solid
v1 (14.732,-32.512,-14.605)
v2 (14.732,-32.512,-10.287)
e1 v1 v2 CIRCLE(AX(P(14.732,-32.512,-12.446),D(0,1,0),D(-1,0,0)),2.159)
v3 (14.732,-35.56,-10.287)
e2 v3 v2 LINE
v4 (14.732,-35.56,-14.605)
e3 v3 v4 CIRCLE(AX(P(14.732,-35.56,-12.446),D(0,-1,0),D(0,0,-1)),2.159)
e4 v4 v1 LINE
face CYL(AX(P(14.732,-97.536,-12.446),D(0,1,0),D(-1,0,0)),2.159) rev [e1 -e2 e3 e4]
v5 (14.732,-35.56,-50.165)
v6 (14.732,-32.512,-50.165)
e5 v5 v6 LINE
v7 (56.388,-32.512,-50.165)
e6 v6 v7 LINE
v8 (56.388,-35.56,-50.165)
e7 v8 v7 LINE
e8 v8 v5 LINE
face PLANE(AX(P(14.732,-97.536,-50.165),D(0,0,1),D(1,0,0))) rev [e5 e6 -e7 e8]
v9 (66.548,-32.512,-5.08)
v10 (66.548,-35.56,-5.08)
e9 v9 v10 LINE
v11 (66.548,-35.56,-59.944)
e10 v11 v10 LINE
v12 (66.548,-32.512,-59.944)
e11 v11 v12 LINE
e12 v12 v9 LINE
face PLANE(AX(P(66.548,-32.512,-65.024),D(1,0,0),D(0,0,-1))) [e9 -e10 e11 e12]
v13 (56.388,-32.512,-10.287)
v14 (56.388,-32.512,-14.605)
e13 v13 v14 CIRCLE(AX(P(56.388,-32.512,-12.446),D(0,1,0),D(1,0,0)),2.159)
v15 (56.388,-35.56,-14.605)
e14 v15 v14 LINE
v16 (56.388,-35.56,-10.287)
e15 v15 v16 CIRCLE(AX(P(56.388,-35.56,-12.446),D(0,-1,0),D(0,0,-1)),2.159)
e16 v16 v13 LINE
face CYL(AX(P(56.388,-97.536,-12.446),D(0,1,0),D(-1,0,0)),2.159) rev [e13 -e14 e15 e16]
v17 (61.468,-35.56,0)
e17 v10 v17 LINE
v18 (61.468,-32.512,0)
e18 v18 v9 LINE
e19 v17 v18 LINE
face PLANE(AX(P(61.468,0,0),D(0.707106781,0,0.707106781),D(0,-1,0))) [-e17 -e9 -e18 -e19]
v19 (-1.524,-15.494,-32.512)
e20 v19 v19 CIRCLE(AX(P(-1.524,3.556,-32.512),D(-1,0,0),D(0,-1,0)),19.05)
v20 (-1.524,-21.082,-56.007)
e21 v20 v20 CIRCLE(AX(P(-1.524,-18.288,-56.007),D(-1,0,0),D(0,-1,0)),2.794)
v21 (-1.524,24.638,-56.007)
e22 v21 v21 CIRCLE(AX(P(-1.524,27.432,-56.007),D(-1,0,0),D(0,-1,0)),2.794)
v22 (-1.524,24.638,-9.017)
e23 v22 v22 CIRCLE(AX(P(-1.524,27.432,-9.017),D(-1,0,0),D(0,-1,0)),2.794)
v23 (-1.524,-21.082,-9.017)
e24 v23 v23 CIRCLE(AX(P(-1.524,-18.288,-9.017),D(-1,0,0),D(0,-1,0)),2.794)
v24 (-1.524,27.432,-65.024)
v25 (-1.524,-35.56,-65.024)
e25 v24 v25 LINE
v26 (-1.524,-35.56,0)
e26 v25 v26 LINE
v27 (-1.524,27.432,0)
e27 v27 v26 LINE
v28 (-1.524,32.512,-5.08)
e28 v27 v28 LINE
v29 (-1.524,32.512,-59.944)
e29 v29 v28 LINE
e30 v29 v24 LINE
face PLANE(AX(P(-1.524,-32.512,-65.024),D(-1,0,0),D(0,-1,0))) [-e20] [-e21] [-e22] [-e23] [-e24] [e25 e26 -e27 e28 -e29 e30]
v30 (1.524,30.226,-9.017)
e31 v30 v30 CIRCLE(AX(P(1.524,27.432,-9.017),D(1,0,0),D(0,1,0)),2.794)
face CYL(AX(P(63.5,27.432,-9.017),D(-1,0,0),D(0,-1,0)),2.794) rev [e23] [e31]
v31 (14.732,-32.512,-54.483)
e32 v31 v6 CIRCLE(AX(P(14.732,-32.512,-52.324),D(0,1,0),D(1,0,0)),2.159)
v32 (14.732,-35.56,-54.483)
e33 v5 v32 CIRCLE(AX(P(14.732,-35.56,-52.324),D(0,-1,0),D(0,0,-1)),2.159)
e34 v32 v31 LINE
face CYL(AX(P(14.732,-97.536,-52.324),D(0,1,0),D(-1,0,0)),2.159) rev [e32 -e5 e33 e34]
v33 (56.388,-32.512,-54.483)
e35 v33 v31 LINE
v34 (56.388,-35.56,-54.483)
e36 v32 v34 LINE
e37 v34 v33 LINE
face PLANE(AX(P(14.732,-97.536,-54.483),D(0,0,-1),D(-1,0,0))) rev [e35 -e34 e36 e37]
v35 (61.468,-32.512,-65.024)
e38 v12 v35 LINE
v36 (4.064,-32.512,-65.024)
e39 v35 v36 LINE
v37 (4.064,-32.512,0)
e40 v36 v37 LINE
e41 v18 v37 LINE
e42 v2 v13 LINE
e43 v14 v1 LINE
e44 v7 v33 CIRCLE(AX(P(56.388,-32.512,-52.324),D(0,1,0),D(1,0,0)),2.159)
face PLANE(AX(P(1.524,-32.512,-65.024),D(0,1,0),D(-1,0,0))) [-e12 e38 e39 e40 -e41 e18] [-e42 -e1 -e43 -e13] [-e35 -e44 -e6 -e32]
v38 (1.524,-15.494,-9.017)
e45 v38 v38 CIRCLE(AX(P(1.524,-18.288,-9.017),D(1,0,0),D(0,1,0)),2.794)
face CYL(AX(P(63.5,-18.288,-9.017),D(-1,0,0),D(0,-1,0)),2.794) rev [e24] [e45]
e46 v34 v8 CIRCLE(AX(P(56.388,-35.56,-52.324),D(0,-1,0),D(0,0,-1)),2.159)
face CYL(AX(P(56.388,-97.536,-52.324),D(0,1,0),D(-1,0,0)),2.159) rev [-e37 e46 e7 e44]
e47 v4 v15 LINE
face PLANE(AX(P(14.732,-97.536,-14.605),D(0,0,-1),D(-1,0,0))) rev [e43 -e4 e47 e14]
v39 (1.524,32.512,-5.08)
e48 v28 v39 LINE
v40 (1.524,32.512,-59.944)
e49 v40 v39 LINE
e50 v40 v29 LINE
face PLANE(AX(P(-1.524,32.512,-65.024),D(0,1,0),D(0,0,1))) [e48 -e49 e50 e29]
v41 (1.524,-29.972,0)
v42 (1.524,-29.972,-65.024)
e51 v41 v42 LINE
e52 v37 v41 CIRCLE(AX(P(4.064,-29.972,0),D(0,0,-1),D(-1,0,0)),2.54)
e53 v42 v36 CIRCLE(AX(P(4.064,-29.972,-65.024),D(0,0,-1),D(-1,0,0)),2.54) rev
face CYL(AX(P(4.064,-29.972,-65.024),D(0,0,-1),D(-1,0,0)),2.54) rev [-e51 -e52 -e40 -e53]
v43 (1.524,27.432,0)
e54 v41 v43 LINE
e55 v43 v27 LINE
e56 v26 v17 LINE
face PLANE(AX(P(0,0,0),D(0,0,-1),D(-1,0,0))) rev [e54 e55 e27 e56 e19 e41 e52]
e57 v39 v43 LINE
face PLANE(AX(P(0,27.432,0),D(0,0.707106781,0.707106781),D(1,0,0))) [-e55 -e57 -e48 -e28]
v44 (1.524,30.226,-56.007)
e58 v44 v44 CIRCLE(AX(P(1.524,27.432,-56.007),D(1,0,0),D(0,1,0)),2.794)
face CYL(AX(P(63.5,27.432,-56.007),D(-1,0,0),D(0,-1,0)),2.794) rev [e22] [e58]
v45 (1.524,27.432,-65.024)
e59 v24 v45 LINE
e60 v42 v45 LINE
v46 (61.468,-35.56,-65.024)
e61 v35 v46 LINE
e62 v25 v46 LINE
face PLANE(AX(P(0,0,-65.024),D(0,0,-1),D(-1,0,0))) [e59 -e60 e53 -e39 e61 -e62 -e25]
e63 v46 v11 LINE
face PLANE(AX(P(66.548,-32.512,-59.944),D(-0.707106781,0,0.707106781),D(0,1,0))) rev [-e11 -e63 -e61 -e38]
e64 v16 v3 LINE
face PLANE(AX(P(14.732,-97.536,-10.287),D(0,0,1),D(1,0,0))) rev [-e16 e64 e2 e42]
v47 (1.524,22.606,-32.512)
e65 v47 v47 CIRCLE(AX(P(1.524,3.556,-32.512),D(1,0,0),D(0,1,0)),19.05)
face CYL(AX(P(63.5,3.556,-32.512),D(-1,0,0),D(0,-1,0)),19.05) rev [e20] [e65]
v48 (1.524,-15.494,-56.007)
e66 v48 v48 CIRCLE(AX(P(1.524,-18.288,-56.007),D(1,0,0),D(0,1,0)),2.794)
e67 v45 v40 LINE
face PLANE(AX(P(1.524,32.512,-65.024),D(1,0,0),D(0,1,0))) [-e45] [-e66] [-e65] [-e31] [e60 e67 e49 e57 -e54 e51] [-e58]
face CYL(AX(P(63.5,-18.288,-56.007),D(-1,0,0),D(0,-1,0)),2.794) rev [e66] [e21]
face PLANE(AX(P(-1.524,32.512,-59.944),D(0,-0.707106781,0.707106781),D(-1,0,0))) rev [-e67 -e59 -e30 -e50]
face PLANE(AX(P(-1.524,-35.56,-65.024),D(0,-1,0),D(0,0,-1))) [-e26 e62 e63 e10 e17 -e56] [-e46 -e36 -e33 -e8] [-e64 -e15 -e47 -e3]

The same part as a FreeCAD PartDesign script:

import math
import FreeCAD as App
import Part
import Sketcher
Q = App.Units.Quantity


def edges_at(feature, points):
    """Names of the edges that pass closest to the given points."""
    edges = feature.Shape.Edges
    near = lambda p: min(range(len(edges)), key=lambda i: edges[i].distToShape(Part.Vertex(*p))[0])
    return sorted({f"Edge{near(p) + 1}" for p in points})


def add_polygon(sketch, points):
    """Adds a closed chain of lines whose ends are joined by coincident constraints."""
    first, n = sketch.GeometryCount, len(points)
    for a, b in zip(points, points[1:] + points[:1]):
        sketch.addGeometry(Part.LineSegment(App.Vector(*a, 0), App.Vector(*b, 0)), False)
    for i in range(n):
        sketch.addConstraint(Sketcher.Constraint("Coincident", first + i, 2, first + (i + 1) % n, 1))

doc = App.newDocument("Part")
body = doc.addObject("PartDesign::Body", "Body")

sketch1 = body.newObject("Sketcher::SketchObject", "Sketch")
sketch1.AttachmentSupport = (doc.getObject("XY_Plane"), [""])
sketch1.MapMode = "FlatFace"
add_polygon(sketch1, [(1.5, 32.5), (-1.5, 32.5), (-1.5, -35.6), (66.5, -35.6), (66.5, -32.5), (1.5, -32.5)])
sketch1.addConstraint(Sketcher.Constraint("Horizontal", 0))
sketch1.addConstraint(Sketcher.Constraint("Vertical", 1))
sketch1.addConstraint(Sketcher.Constraint("Horizontal", 2))
sketch1.addConstraint(Sketcher.Constraint("Vertical", 3))
sketch1.addConstraint(Sketcher.Constraint("Horizontal", 4))
sketch1.addConstraint(Sketcher.Constraint("Vertical", 5))
sketch1.addConstraint(Sketcher.Constraint("Symmetric", 0, 2, 4, 2, -1, 1))
sketch1.addConstraint(Sketcher.Constraint("Equal", 2, 1))
sketch1.addConstraint(Sketcher.Constraint("Equal", 0, 3))
sketch1.addConstraint(Sketcher.Constraint("DistanceX", 0, 2, 0, 1, Q("0.12 in")))
sketch1.addConstraint(Sketcher.Constraint("DistanceX", 2, 1, 2, 2, Q("2.68 in")))
pad1 = body.newObject("PartDesign::Pad", "Pad")
pad1.Profile = sketch1
pad1.Length = Q("2.56 in")
pad1.Reversed = True

sketch2 = body.newObject("Sketcher::SketchObject", "Sketch001")
sketch2.AttachmentSupport = (doc.getObject("XZ_Plane"), [""])
sketch2.MapMode = "FlatFace"
sketch2.AttachmentOffset = App.Placement(App.Vector(0, 0, 1.28 * 25.4), App.Rotation())
sketch2.addGeometry(Part.LineSegment(App.Vector(56.4, -14.6, 0), App.Vector(14.7, -14.6, 0)), False)
sketch2.addGeometry(Part.ArcOfCircle(Part.Circle(App.Vector(14.7, -12.4, 0), App.Vector(0, 0, 1), 2.2), math.radians(90), math.radians(270)), False)
sketch2.addGeometry(Part.LineSegment(App.Vector(14.7, -10.3, 0), App.Vector(56.4, -10.3, 0)), False)
sketch2.addGeometry(Part.ArcOfCircle(Part.Circle(App.Vector(56.4, -12.4, 0), App.Vector(0, 0, 1), 2.2), math.radians(-90), math.radians(90)), False)
sketch2.addGeometry(Part.LineSegment(App.Vector(56.4, -54.5, 0), App.Vector(14.7, -54.5, 0)), False)
sketch2.addGeometry(Part.ArcOfCircle(Part.Circle(App.Vector(14.7, -52.3, 0), App.Vector(0, 0, 1), 2.2), math.radians(90), math.radians(270)), False)
sketch2.addGeometry(Part.LineSegment(App.Vector(14.7, -50.2, 0), App.Vector(56.4, -50.2, 0)), False)
sketch2.addGeometry(Part.ArcOfCircle(Part.Circle(App.Vector(56.4, -52.3, 0), App.Vector(0, 0, 1), 2.2), math.radians(-90), math.radians(90)), False)
sketch2.addConstraint(Sketcher.Constraint("Tangent", 0, 2, 1, 2))
sketch2.addConstraint(Sketcher.Constraint("Tangent", 1, 1, 2, 1))
sketch2.addConstraint(Sketcher.Constraint("Tangent", 2, 2, 3, 2))
sketch2.addConstraint(Sketcher.Constraint("Tangent", 3, 1, 0, 1))
sketch2.addConstraint(Sketcher.Constraint("Tangent", 4, 2, 5, 2))
sketch2.addConstraint(Sketcher.Constraint("Tangent", 5, 1, 6, 1))
sketch2.addConstraint(Sketcher.Constraint("Tangent", 6, 2, 7, 2))
sketch2.addConstraint(Sketcher.Constraint("Tangent", 7, 1, 4, 1))
sketch2.addConstraint(Sketcher.Constraint("Horizontal", 0))
sketch2.addConstraint(Sketcher.Constraint("Horizontal", 2))
sketch2.addConstraint(Sketcher.Constraint("Horizontal", 4))
sketch2.addConstraint(Sketcher.Constraint("Horizontal", 6))
sketch2.addConstraint(Sketcher.Constraint("Equal", 3, 5))
sketch2.addConstraint(Sketcher.Constraint("Vertical", 1, 3, 5, 3))
sketch2.addConstraint(Sketcher.Constraint("Vertical", 3, 3, 7, 3))
sketch2.addConstraint(Sketcher.Constraint("Radius", 1, Q("0.085 in")))
sketch2.addConstraint(Sketcher.Constraint("DistanceX", 0, 2, 0, 1, Q("1.64 in")))
sketch2.addConstraint(Sketcher.Constraint("DistanceY", 5, 1, 0, 2, Q("1.4 in")))
sketch2.addConstraint(Sketcher.Constraint("DistanceX", -1, 1, 1, 3, Q("0.58 in")))
sketch2.addConstraint(Sketcher.Constraint("DistanceY", 1, 3, -1, 1, Q("0.49 in")))
pocket1 = body.newObject("PartDesign::Pocket", "Pocket")
pocket1.Profile = sketch2
pocket1.Length = Q("2.56 in")
pocket1.Reversed = True

sketch3 = body.newObject("Sketcher::SketchObject", "Sketch002")
sketch3.AttachmentSupport = (doc.getObject("YZ_Plane"), [""])
sketch3.MapMode = "FlatFace"
sketch3.AttachmentOffset = App.Placement(App.Vector(0, 0, -0.06 * 25.4), App.Rotation())
sketch3.addGeometry(Part.Circle(App.Vector(3.6, -32.5, 0), App.Vector(0, 0, 1), 19.1), False)
sketch3.addGeometry(Part.Circle(App.Vector(-18.3, -56, 0), App.Vector(0, 0, 1), 2.8), False)
sketch3.addGeometry(Part.Circle(App.Vector(-18.3, -9, 0), App.Vector(0, 0, 1), 2.8), False)
sketch3.addGeometry(Part.Circle(App.Vector(27.4, -9, 0), App.Vector(0, 0, 1), 2.8), False)
sketch3.addGeometry(Part.Circle(App.Vector(27.4, -56, 0), App.Vector(0, 0, 1), 2.8), False)
sketch3.addConstraint(Sketcher.Constraint("Equal", 1, 2))
sketch3.addConstraint(Sketcher.Constraint("Equal", 2, 3))
sketch3.addConstraint(Sketcher.Constraint("Equal", 3, 4))
sketch3.addConstraint(Sketcher.Constraint("Horizontal", 2, 3, 3, 3))
sketch3.addConstraint(Sketcher.Constraint("Horizontal", 1, 3, 4, 3))
sketch3.addConstraint(Sketcher.Constraint("Vertical", 1, 3, 2, 3))
sketch3.addConstraint(Sketcher.Constraint("Vertical", 3, 3, 4, 3))
sketch3.addConstraint(Sketcher.Constraint("Diameter", 0, Q("1.5 in")))
sketch3.addConstraint(Sketcher.Constraint("Diameter", 1, Q("0.22 in")))
sketch3.addConstraint(Sketcher.Constraint("DistanceX", 2, 3, 3, 3, Q("1.8 in")))
sketch3.addConstraint(Sketcher.Constraint("DistanceX", -1, 1, 0, 3, Q("0.14 in")))
sketch3.addConstraint(Sketcher.Constraint("DistanceY", 0, 3, -1, 1, Q("1.28 in")))
sketch3.addConstraint(Sketcher.Constraint("DistanceX", 1, 3, -1, 1, Q("0.72 in")))
sketch3.addConstraint(Sketcher.Constraint("DistanceY", 1, 3, 2, 3, Q("1.85 in")))
sketch3.addConstraint(Sketcher.Constraint("DistanceY", 1, 3, -1, 1, Q("2.205 in")))
pocket2 = body.newObject("PartDesign::Pocket", "Pocket001")
pocket2.Profile = sketch3
pocket2.Length = Q("2.56 in")
pocket2.Reversed = True
doc.recompute()

fillet = body.newObject("PartDesign::Fillet", "Fillet")
fillet.Base = (pocket2, edges_at(pocket2, [(1.524, -32.512, -32.512)]))
fillet.Radius = Q("0.1 in")
doc.recompute()

chamfer = body.newObject("PartDesign::Chamfer", "Chamfer")
chamfer.Base = (fillet, edges_at(fillet, [
    (0, 32.512, -65.024),
    (66.548, -34.036, -65.024),
    (66.548, -34.036, 0),
    (0, 32.512, 0),
]))
chamfer.Size = Q("0.2 in")

doc.recompute()
